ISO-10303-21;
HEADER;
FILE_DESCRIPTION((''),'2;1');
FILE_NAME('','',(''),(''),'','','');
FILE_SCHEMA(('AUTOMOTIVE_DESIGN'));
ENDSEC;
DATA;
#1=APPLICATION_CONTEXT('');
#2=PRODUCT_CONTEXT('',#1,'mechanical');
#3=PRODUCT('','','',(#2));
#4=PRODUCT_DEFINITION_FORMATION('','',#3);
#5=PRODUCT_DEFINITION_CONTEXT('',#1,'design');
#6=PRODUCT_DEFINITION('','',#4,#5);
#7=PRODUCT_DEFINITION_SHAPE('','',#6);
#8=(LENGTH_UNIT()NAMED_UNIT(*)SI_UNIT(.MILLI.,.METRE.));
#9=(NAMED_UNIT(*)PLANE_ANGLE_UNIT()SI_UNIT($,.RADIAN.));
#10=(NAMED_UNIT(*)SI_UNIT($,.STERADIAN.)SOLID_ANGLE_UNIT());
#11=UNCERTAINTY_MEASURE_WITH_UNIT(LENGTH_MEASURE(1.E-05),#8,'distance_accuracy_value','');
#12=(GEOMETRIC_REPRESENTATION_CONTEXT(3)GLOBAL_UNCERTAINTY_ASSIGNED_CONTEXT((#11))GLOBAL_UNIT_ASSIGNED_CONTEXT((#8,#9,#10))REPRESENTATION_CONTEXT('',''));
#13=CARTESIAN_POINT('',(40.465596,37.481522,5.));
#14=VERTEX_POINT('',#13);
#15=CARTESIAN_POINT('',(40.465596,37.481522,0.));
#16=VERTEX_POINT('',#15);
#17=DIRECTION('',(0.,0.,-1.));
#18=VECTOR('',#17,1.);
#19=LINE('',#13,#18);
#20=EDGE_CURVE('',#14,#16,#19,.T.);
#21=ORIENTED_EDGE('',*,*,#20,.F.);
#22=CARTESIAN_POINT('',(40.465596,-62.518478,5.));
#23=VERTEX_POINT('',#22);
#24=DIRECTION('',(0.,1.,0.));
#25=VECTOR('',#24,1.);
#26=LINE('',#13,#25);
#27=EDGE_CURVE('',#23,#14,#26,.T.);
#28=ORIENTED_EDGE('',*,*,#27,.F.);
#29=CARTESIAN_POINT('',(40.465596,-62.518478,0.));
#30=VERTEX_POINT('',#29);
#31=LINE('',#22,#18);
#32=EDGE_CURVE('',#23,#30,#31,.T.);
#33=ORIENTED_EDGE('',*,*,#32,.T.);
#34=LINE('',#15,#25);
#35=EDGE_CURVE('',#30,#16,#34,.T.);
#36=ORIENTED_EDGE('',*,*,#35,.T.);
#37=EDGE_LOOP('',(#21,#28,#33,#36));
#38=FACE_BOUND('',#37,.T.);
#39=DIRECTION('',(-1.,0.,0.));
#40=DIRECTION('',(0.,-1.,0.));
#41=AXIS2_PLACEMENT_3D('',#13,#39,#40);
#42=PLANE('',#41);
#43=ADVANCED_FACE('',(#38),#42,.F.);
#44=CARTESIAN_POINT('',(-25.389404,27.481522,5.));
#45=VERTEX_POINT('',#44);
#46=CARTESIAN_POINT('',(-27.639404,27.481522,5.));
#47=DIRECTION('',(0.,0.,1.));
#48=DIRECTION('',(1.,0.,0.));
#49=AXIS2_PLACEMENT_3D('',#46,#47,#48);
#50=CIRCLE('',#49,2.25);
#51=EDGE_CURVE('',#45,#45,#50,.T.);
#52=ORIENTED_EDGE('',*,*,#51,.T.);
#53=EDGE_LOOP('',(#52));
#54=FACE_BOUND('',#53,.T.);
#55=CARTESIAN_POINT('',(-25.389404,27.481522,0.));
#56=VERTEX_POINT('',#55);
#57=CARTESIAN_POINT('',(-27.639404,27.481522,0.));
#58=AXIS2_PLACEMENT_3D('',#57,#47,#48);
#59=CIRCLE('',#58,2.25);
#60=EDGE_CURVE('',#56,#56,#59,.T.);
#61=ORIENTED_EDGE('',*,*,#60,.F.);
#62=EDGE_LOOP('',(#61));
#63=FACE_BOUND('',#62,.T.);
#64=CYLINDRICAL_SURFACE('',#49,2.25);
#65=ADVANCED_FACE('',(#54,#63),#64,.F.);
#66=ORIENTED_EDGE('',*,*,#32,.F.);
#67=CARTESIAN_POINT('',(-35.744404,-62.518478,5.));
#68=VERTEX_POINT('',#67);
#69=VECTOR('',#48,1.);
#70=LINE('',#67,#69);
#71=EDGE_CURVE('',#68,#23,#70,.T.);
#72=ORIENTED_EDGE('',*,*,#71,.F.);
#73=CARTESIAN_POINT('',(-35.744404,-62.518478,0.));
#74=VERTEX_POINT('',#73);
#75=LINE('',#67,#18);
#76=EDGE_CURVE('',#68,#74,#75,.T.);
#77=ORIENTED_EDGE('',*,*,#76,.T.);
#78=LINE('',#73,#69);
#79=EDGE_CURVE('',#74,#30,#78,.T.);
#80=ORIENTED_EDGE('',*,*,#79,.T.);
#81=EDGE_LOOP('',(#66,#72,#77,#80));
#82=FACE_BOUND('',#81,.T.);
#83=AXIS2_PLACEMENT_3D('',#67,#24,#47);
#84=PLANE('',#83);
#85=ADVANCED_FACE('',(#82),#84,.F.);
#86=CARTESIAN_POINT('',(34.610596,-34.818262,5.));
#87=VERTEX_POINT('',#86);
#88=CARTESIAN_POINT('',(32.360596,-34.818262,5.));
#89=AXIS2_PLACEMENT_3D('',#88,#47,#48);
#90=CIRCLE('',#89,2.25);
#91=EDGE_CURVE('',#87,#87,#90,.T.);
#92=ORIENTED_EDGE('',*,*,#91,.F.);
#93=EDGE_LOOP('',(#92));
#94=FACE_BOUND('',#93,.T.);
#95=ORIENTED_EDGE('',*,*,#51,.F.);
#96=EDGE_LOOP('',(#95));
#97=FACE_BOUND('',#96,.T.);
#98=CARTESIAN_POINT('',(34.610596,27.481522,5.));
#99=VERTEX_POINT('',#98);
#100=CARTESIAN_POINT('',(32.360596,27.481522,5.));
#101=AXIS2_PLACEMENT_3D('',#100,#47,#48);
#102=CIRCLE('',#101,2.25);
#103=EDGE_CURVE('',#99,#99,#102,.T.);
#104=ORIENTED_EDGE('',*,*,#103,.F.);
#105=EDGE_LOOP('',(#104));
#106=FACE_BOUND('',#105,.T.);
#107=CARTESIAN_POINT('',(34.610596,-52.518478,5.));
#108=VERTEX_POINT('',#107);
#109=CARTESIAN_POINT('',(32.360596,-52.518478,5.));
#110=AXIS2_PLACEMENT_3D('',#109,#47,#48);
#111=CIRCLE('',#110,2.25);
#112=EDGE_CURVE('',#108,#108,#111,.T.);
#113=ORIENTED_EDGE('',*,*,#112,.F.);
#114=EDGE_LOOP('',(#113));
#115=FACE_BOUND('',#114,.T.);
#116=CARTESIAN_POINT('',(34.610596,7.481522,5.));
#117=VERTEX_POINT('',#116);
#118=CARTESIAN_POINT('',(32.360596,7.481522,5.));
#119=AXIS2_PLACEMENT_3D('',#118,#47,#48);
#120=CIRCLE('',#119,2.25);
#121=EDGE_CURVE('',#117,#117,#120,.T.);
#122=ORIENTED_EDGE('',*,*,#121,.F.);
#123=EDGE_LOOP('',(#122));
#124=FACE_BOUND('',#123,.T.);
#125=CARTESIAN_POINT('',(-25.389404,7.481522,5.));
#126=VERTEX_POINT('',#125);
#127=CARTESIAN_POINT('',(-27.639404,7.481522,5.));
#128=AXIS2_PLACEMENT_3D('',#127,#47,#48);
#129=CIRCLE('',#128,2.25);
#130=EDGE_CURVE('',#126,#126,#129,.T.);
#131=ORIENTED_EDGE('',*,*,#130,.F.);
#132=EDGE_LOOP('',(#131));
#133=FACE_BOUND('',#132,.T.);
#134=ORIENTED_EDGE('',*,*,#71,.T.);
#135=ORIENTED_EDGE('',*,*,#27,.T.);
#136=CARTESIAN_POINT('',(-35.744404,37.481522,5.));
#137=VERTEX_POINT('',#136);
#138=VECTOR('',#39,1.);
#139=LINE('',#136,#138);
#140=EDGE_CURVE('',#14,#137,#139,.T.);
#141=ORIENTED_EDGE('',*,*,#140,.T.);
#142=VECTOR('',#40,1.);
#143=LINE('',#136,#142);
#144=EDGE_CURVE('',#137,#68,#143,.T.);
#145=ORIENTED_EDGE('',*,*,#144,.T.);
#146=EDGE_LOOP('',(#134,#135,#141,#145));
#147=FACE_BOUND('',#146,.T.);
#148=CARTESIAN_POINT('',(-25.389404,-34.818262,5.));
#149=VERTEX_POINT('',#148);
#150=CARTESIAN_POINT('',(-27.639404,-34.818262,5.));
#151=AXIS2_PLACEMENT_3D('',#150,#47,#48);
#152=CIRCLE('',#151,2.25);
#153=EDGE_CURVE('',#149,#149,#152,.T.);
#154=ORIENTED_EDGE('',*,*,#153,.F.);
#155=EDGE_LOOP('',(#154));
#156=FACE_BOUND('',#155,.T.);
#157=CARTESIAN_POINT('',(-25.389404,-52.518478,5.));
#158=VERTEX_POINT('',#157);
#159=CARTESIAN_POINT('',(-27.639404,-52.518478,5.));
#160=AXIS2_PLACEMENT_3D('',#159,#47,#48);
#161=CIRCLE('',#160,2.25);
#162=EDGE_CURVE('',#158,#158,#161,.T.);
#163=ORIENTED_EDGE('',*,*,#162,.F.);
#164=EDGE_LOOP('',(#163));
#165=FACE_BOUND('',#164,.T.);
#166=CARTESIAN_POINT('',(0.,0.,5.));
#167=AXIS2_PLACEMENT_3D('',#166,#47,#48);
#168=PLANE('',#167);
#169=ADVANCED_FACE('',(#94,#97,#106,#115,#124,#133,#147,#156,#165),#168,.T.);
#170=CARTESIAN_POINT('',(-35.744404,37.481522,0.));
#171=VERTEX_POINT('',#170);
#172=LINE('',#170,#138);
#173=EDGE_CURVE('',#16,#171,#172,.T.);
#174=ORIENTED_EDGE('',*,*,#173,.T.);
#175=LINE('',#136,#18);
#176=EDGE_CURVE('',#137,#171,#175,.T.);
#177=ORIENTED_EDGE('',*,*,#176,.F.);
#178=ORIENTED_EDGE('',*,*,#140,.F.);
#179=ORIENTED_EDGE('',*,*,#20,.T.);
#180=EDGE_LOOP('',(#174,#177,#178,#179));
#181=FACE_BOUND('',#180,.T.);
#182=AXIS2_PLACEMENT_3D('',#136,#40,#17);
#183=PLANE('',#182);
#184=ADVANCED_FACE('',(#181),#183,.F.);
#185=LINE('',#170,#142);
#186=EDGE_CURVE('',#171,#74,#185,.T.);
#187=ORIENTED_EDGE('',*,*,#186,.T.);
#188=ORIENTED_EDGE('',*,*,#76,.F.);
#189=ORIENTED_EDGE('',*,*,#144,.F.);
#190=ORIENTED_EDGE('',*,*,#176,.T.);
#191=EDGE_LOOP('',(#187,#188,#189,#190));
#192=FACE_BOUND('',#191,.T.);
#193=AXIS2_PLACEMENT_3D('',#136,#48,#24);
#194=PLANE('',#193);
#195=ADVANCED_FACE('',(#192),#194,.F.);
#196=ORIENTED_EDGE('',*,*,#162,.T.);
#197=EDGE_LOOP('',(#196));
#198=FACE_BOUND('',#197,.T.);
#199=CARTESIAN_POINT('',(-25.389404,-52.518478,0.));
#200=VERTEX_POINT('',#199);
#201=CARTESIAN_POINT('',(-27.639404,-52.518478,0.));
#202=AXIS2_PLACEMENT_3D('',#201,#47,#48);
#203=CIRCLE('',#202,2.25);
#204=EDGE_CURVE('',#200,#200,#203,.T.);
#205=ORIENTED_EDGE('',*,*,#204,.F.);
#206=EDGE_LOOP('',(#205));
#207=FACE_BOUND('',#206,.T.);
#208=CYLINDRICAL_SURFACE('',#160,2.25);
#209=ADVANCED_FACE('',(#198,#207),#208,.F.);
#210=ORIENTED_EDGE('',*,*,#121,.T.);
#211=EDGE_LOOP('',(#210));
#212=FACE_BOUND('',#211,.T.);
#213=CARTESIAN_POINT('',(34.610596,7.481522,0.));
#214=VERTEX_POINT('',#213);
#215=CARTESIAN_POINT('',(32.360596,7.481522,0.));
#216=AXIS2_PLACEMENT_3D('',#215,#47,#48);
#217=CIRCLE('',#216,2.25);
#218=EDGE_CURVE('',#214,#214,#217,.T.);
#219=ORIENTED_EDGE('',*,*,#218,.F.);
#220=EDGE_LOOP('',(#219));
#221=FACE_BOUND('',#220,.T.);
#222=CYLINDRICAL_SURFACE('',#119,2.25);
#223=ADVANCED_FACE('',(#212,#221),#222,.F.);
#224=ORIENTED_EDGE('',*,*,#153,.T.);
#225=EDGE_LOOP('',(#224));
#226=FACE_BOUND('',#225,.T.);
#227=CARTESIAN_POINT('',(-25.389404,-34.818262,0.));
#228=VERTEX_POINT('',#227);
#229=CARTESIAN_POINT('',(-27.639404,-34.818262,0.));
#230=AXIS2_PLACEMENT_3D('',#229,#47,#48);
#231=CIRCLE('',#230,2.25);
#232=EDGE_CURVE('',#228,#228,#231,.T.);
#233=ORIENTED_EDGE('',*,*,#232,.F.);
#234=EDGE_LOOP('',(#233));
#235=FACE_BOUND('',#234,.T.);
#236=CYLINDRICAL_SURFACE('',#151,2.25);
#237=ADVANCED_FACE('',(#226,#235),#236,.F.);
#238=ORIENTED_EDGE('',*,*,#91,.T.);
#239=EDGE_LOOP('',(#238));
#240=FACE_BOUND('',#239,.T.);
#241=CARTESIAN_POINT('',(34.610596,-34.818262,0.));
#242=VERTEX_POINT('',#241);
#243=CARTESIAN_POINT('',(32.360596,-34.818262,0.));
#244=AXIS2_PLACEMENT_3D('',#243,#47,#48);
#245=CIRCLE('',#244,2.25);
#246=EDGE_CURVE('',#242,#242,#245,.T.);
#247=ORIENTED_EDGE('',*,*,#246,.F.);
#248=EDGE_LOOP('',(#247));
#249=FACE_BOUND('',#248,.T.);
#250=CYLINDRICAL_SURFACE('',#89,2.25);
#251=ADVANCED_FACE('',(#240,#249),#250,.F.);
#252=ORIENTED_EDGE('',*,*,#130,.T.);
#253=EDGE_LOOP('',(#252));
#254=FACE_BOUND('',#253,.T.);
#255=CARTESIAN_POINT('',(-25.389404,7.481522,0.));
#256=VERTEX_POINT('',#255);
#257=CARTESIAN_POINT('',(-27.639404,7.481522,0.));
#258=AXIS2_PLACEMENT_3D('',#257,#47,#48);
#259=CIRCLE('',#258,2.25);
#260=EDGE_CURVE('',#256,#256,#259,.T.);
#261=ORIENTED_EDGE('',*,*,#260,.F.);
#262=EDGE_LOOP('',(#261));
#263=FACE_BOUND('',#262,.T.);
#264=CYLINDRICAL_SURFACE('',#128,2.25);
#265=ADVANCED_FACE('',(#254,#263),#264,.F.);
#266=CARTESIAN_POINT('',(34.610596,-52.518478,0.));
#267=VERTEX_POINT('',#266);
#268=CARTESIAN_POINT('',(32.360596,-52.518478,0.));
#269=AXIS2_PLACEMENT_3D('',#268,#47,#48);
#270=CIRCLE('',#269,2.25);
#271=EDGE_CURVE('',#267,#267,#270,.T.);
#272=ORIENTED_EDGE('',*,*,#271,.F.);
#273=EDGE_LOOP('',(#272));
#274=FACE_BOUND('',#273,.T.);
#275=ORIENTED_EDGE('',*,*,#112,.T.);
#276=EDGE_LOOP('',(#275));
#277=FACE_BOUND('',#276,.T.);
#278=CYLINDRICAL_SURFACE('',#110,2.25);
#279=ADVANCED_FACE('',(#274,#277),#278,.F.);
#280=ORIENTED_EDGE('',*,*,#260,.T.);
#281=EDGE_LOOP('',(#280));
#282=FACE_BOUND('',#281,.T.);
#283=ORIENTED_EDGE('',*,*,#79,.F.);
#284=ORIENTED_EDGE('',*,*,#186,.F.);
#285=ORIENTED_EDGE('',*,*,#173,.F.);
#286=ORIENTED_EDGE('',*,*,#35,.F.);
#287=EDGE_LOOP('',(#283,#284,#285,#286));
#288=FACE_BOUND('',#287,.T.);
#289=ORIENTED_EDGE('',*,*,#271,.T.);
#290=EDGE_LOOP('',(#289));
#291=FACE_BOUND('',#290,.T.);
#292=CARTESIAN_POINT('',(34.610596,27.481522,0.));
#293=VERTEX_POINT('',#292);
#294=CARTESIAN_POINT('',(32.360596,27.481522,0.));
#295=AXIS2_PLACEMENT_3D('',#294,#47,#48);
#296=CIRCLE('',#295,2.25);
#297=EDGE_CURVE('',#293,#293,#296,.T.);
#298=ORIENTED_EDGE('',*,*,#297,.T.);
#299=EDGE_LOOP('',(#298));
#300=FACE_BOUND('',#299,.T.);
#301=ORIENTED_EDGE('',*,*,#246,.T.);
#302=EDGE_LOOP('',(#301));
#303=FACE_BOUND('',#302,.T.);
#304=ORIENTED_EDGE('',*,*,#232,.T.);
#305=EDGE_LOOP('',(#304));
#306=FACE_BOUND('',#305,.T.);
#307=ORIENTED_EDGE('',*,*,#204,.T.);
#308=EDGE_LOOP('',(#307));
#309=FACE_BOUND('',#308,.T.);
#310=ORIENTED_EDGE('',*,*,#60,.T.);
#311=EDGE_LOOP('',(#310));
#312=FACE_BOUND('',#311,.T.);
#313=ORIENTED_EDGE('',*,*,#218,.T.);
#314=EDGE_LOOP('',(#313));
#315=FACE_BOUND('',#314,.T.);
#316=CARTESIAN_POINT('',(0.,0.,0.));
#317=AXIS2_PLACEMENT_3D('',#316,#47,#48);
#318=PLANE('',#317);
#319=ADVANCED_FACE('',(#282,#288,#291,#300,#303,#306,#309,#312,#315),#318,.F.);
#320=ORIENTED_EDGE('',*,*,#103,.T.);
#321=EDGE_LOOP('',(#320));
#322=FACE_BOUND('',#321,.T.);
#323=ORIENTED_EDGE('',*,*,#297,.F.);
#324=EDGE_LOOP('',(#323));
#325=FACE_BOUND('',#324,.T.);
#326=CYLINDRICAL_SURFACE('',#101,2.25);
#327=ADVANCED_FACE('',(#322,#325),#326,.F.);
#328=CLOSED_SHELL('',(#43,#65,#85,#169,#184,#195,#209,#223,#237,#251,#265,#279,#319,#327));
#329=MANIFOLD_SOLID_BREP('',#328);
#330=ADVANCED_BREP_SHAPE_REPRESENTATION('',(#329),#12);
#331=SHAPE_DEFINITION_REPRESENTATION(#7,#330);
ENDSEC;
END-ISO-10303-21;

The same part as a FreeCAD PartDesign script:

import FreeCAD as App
import Part
import Sketcher


def add_polygon(sketch, points):
    """Adds a closed chain of lines whose ends are joined by coincident constraints."""
    first, n = sketch.GeometryCount, len(points)
    for a, b in zip(points, points[1:] + points[:1]):
        sketch.addGeometry(Part.LineSegment(App.Vector(*a, 0), App.Vector(*b, 0)), False)
    for i in range(n):
        sketch.addConstraint(Sketcher.Constraint("Coincident", first + i, 2, first + (i + 1) % n, 1))

doc = App.newDocument("Part")
params = doc.addObject("Spreadsheet::Sheet", "Params")
for row, (alias, value) in enumerate([
    ("sketch1_height", "100 mm"),
    ("sketch1_width", "76.21 mm"),
    ("pad1_length", "5 mm"),
    ("sketch2_diameter", "4.5 mm"),
    ("hole_diameter", "4.5 mm"),
    ("hole_depth", "5 mm"),
], start=1):
    params.set(f"A{row}", alias)
    params.set(f"B{row}", "=" + value)
    params.setAlias(f"B{row}", alias)

body = doc.addObject("PartDesign::Body", "Body")

# Sketch on XY plane
sketch1 = body.newObject("Sketcher::SketchObject", "Sketch")
sketch1.AttachmentSupport = (doc.getObject("XY_Plane"), [""])
sketch1.MapMode = "FlatFace"
add_polygon(sketch1, [(-35.744404, 37.481522), (-35.744404, -62.518478), (40.465596, -62.518478), (40.465596, 37.481522)])  # lines 0-3
sketch1.addConstraint([
    Sketcher.Constraint("Vertical", 0),
    Sketcher.Constraint("Horizontal", 1),
    Sketcher.Constraint("Vertical", 2),
    Sketcher.Constraint("Horizontal", 3),
    Sketcher.Constraint("DistanceY", 0, 2, 0, 1, 100.0),
    Sketcher.Constraint("DistanceX", 1, 1, 1, 2, 76.21),
    Sketcher.Constraint("DistanceX", 0, 2, -1, 1, 35.744404),
    Sketcher.Constraint("DistanceY", 0, 2, -1, 1, 62.518478),
])
sketch1.setExpression("Constraints[8]", "Params.sketch1_height")
sketch1.setExpression("Constraints[9]", "Params.sketch1_width")
pad1 = body.newObject("PartDesign::Pad", "Pad")
pad1.Profile = sketch1
pad1.setExpression("Length", "Params.pad1_length")

# Sketch on XY plane
sketch2 = body.newObject("Sketcher::SketchObject", "Sketch001")
sketch2.AttachmentSupport = (doc.getObject("XY_Plane"), [""])
sketch2.MapMode = "FlatFace"
sketch2.AttachmentOffset = App.Placement(App.Vector(0, 0, 5), App.Rotation())
sketch2.addGeometry([
    Part.Circle(App.Vector(-27.639404, 7.481522, 0), App.Vector(0, 0, 1), 2.25),  # 0
    Part.Circle(App.Vector(-27.639404, 27.481522, 0), App.Vector(0, 0, 1), 2.25),  # 1
    Part.Circle(App.Vector(32.360596, 7.481522, 0), App.Vector(0, 0, 1), 2.25),  # 2
    Part.Circle(App.Vector(32.360596, 27.481522, 0), App.Vector(0, 0, 1), 2.25),  # 3
    Part.Circle(App.Vector(32.360596, -52.518478, 0), App.Vector(0, 0, 1), 2.25),  # 4
    Part.Circle(App.Vector(32.360596, -34.818262, 0), App.Vector(0, 0, 1), 2.25),  # 5
    Part.Circle(App.Vector(-27.639404, -34.818262, 0), App.Vector(0, 0, 1), 2.25),  # 6
    Part.Circle(App.Vector(-27.639404, -52.518478, 0), App.Vector(0, 0, 1), 2.25),  # 7
], False)
sketch2.addConstraint([
    Sketcher.Constraint("Equal", 0, 1),
    Sketcher.Constraint("Equal", 1, 2),
    Sketcher.Constraint("Equal", 2, 3),
    Sketcher.Constraint("Equal", 3, 4),
    Sketcher.Constraint("Equal", 4, 5),
    Sketcher.Constraint("Equal", 5, 6),
    Sketcher.Constraint("Equal", 6, 7),
    Sketcher.Constraint("Horizontal", 0, 3, 2, 3),
    Sketcher.Constraint("Horizontal", 1, 3, 3, 3),
    Sketcher.Constraint("Horizontal", 5, 3, 6, 3),
    Sketcher.Constraint("Horizontal", 4, 3, 7, 3),
    Sketcher.Constraint("Vertical", 0, 3, 1, 3),
    Sketcher.Constraint("Vertical", 2, 3, 3, 3),
    Sketcher.Constraint("Vertical", 3, 3, 4, 3),
    Sketcher.Constraint("Vertical", 4, 3, 5, 3),
    Sketcher.Constraint("Vertical", 1, 3, 6, 3),
    Sketcher.Constraint("Vertical", 6, 3, 7, 3),
    Sketcher.Constraint("Diameter", 0, 4.5),
    Sketcher.Constraint("DistanceY", 0, 3, 1, 3, 20.0),
    Sketcher.Constraint("DistanceX", 0, 3, 2, 3, 60.0),
    Sketcher.Constraint("DistanceY", 4, 3, 2, 3, 60.0),
    Sketcher.Constraint("DistanceX", 0, 3, -1, 1, 27.639404),
    Sketcher.Constraint("DistanceY", -1, 1, 0, 3, 7.481522),
    Sketcher.Constraint("DistanceY", 5, 3, -1, 1, 34.818262),
])
sketch2.setExpression("Constraints[17]", "Params.sketch2_diameter")
doc.recompute()
hole = body.newObject("PartDesign::Hole", "Hole")
hole.Profile = sketch2
hole.ThreadType = "None"
hole.setExpression("Diameter", "Params.hole_diameter")
hole.DepthType = "Dimension"
hole.setExpression("Depth", "Params.hole_depth")
hole.DrillPoint = "Angled"
hole.DrillPointAngle = 118

doc.recompute()
